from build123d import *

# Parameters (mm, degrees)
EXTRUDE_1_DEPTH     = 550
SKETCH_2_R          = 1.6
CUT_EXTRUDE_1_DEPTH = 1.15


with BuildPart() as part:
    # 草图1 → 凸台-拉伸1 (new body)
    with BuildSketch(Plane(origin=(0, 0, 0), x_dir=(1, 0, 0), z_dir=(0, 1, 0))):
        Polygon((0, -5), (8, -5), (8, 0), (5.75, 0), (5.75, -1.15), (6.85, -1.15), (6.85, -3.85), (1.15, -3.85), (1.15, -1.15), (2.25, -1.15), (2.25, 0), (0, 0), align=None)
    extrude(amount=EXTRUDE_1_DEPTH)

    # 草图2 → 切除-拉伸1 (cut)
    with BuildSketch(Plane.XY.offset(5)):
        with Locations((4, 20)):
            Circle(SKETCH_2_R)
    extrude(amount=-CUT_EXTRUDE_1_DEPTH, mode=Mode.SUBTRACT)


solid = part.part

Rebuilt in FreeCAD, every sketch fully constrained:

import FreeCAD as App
import Part
import Sketcher

doc = App.newDocument("Part")
body = doc.addObject("PartDesign::Body", "Body")

# Sketch on XZ plane
sketch1 = body.newObject("Sketcher::SketchObject", "Sketch")
sketch1.AttachmentSupport = (doc.getObject("XZ_Plane"), [""])
sketch1.MapMode = "FlatFace"
sketch1.addGeometry(Part.LineSegment(App.Vector(0, 5, 0), App.Vector(8, 5, 0)), False)
sketch1.addGeometry(Part.LineSegment(App.Vector(8, 5, 0), App.Vector(8, 0, 0)), False)
sketch1.addGeometry(Part.LineSegment(App.Vector(8, 0, 0), App.Vector(5.8, 0, 0)), False)
sketch1.addGeometry(Part.LineSegment(App.Vector(5.8, 0, 0), App.Vector(5.8, 1.1, 0)), False)
sketch1.addGeometry(Part.LineSegment(App.Vector(5.8, 1.1, 0), App.Vector(6.8, 1.1, 0)), False)
sketch1.addGeometry(Part.LineSegment(App.Vector(6.8, 1.1, 0), App.Vector(6.8, 3.9, 0)), False)
sketch1.addGeometry(Part.LineSegment(App.Vector(6.8, 3.9, 0), App.Vector(1.1, 3.9, 0)), False)
sketch1.addGeometry(Part.LineSegment(App.Vector(1.1, 3.9, 0), App.Vector(1.1, 1.1, 0)), False)
sketch1.addGeometry(Part.LineSegment(App.Vector(1.1, 1.1, 0), App.Vector(2.2, 1.1, 0)), False)
sketch1.addGeometry(Part.LineSegment(App.Vector(2.2, 1.1, 0), App.Vector(2.2, 0, 0)), False)
sketch1.addGeometry(Part.LineSegment(App.Vector(2.2, 0, 0), App.Vector(0, 0, 0)), False)
sketch1.addGeometry(Part.LineSegment(App.Vector(0, 0, 0), App.Vector(0, 5, 0)), False)
sketch1.addConstraint(Sketcher.Constraint("Coincident", 0, 2, 1, 1))
sketch1.addConstraint(Sketcher.Constraint("Coincident", 1, 2, 2, 1))
sketch1.addConstraint(Sketcher.Constraint("Coincident", 2, 2, 3, 1))
sketch1.addConstraint(Sketcher.Constraint("Coincident", 3, 2, 4, 1))
sketch1.addConstraint(Sketcher.Constraint("Coincident", 4, 2, 5, 1))
sketch1.addConstraint(Sketcher.Constraint("Coincident", 5, 2, 6, 1))
sketch1.addConstraint(Sketcher.Constraint("Coincident", 6, 2, 7, 1))
sketch1.addConstraint(Sketcher.Constraint("Coincident", 7, 2, 8, 1))
sketch1.addConstraint(Sketcher.Constraint("Coincident", 8, 2, 9, 1))
sketch1.addConstraint(Sketcher.Constraint("Coincident", 9, 2, 10, 1))
sketch1.addConstraint(Sketcher.Constraint("Coincident", 10, 2, 11, 1))
sketch1.addConstraint(Sketcher.Constraint("Coincident", 11, 2, 0, 1))
sketch1.addConstraint(Sketcher.Constraint("Horizontal", 0))
sketch1.addConstraint(Sketcher.Constraint("Vertical", 1))
sketch1.addConstraint(Sketcher.Constraint("Horizontal", 2))
sketch1.addConstraint(Sketcher.Constraint("Vertical", 3))
sketch1.addConstraint(Sketcher.Constraint("Horizontal", 4))
sketch1.addConstraint(Sketcher.Constraint("Vertical", 5))
sketch1.addConstraint(Sketcher.Constraint("Horizontal", 6))
sketch1.addConstraint(Sketcher.Constraint("Vertical", 7))
sketch1.addConstraint(Sketcher.Constraint("Horizontal", 8))
sketch1.addConstraint(Sketcher.Constraint("Vertical", 9))
sketch1.addConstraint(Sketcher.Constraint("Horizontal", 10))
sketch1.addConstraint(Sketcher.Constraint("Vertical", 11))
sketch1.addConstraint(Sketcher.Constraint("Coincident", 10, 2, -1, 1))
sketch1.addConstraint(Sketcher.Constraint("PointOnObject", 1, 2, -1))
sketch1.addConstraint(Sketcher.Constraint("Horizontal", 4, 2, 7, 2))
sketch1.addConstraint(Sketcher.Constraint("Equal", 4, 8))
sketch1.addConstraint(Sketcher.Constraint("Equal", 2, 10))
sketch1.addConstraint(Sketcher.Constraint("DistanceX", 0, 1, 0, 2, 8.0))
sketch1.addConstraint(Sketcher.Constraint("DistanceY", 1, 2, 1, 1, 5.0))
sketch1.addConstraint(Sketcher.Constraint("DistanceX", 4, 1, 4, 2, 1.1))
sketch1.addConstraint(Sketcher.Constraint("DistanceX", 6, 2, 6, 1, 5.7))
sketch1.addConstraint(Sketcher.Constraint("DistanceY", 5, 1, 5, 2, 2.7))
sketch1.addConstraint(Sketcher.Constraint("DistanceY", 3, 1, 3, 2, 1.15))
pad1 = body.newObject("PartDesign::Pad", "Pad")
pad1.Profile = sketch1
pad1.Length = 550
pad1.Reversed = True

# Sketch on XY plane
sketch2 = body.newObject("Sketcher::SketchObject", "Sketch001")
sketch2.AttachmentSupport = (doc.getObject("XY_Plane"), [""])
sketch2.MapMode = "FlatFace"
sketch2.AttachmentOffset = App.Placement(App.Vector(0, 0, 5), App.Rotation())
sketch2.addGeometry(Part.Circle(App.Vector(4, 20, 0), App.Vector(0, 0, 1), 1.6), False)
sketch2.addConstraint(Sketcher.Constraint("Diameter", 0, 3.2))
sketch2.addConstraint(Sketcher.Constraint("DistanceX", -1, 1, 0, 3, 4.0))
sketch2.addConstraint(Sketcher.Constraint("DistanceY", -1, 1, 0, 3, 20.0))
pocket1 = body.newObject("PartDesign::Pocket", "Pocket")
pocket1.Profile = sketch2
pocket1.Length = 1.15

doc.recompute()
